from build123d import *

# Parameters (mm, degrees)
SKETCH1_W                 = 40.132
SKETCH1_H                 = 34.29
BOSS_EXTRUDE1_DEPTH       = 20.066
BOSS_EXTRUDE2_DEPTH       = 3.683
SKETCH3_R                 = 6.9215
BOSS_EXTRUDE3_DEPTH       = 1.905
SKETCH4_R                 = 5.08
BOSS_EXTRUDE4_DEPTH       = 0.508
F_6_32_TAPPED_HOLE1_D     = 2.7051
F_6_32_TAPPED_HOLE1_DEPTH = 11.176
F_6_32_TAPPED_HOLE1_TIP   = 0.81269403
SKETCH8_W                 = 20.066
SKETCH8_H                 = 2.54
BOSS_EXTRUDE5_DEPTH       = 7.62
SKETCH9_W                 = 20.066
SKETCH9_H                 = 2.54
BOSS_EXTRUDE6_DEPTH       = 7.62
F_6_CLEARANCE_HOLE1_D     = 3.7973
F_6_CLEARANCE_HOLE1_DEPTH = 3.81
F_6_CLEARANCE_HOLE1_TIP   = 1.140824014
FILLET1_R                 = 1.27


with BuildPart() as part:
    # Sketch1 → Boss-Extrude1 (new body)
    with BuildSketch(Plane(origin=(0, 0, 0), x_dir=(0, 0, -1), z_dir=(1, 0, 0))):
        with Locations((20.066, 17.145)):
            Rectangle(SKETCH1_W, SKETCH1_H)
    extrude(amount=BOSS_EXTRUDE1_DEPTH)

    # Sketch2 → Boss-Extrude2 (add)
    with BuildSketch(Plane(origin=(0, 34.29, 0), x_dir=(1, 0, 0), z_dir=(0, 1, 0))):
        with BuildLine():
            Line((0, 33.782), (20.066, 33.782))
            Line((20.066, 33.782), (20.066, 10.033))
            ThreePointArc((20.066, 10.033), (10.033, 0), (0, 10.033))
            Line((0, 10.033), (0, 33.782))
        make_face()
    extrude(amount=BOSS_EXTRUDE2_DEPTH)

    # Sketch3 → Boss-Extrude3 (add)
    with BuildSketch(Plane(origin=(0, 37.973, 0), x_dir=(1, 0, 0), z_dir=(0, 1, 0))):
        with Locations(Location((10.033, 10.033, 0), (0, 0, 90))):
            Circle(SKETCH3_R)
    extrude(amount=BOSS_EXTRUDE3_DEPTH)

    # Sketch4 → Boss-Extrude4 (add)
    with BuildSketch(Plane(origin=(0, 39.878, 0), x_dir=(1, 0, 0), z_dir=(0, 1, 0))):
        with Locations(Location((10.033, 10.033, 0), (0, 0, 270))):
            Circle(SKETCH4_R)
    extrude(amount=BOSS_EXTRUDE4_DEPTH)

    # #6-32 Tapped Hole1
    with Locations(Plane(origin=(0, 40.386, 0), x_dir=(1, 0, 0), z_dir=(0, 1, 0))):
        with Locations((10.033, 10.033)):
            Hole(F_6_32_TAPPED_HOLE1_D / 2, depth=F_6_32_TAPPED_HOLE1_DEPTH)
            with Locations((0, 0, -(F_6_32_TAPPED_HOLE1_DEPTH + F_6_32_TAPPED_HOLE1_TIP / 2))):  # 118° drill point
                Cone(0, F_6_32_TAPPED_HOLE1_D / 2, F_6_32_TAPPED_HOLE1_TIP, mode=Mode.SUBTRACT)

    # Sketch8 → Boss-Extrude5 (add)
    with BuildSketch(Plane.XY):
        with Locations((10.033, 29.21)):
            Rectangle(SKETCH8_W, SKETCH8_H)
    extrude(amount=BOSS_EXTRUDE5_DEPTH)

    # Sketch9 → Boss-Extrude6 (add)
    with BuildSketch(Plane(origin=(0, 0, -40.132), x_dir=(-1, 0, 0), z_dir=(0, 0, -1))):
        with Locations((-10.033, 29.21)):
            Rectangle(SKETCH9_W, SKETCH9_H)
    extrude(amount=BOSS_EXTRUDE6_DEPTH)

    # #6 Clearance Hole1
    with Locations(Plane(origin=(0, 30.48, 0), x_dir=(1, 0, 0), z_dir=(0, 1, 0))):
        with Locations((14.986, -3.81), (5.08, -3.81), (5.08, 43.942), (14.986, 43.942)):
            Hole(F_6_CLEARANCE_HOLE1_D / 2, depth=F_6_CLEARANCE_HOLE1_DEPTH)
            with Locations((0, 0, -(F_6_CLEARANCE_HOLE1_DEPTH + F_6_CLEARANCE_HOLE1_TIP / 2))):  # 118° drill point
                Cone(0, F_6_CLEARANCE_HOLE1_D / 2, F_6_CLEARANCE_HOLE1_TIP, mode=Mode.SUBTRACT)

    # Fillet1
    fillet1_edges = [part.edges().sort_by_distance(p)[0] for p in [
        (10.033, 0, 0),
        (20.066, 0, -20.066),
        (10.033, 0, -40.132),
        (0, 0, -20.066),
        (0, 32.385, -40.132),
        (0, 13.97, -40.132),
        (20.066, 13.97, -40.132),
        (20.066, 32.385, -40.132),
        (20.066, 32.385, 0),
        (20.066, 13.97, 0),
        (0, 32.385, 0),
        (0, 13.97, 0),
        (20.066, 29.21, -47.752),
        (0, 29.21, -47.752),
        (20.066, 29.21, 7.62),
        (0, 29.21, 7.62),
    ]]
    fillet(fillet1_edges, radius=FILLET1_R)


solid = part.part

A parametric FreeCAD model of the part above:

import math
import FreeCAD as App
import Part
import Sketcher
from FreeCAD import Vector
Q = App.Units.Quantity


def edges_at(feature, points):
    """Names of the edges that pass closest to the given points."""
    edges = feature.Shape.Edges
    near = lambda p: min(range(len(edges)), key=lambda i: edges[i].distToShape(Part.Vertex(*p))[0])
    return sorted({f"Edge{near(p) + 1}" for p in points})


def add_polygon(sketch, points):
    """Adds a closed chain of lines whose ends are joined by coincident constraints."""
    first, n = sketch.GeometryCount, len(points)
    for a, b in zip(points, points[1:] + points[:1]):
        sketch.addGeometry(Part.LineSegment(App.Vector(*a, 0), App.Vector(*b, 0)), False)
    for i in range(n):
        sketch.addConstraint(Sketcher.Constraint("Coincident", first + i, 2, first + (i + 1) % n, 1))

doc = App.newDocument("Part")
body = doc.addObject("PartDesign::Body", "Body")

sketch1 = body.newObject("Sketcher::SketchObject", "Sketch")
sketch1.AttachmentSupport = (doc.getObject("YZ_Plane"), [""])
sketch1.MapMode = "FlatFace"
add_polygon(sketch1, [(34, 0), (0, 0), (0, -40), (34, -40)])
sketch1.addConstraint(Sketcher.Constraint("Horizontal", 0))
sketch1.addConstraint(Sketcher.Constraint("Vertical", 1))
sketch1.addConstraint(Sketcher.Constraint("Horizontal", 2))
sketch1.addConstraint(Sketcher.Constraint("Vertical", 3))
sketch1.addConstraint(Sketcher.Constraint("Coincident", 0, 2, -1, 1))
sketch1.addConstraint(Sketcher.Constraint("DistanceX", 0, 2, 0, 1, Q("1.35 in")))
sketch1.addConstraint(Sketcher.Constraint("DistanceY", 1, 2, 1, 1, Q("1.58 in")))
pad1 = body.newObject("PartDesign::Pad", "Pad")
pad1.Profile = sketch1
pad1.Length = Q("0.79 in")

sketch2 = body.newObject("Sketcher::SketchObject", "Sketch001")
sketch2.AttachmentSupport = (doc.getObject("XZ_Plane"), [""])
sketch2.MapMode = "FlatFace"
sketch2.AttachmentOffset = App.Placement(Vector(0, 0, -1.35 * 25.4), App.Rotation())
sketch2.addGeometry(Part.LineSegment(Vector(20, -34, 0), Vector(0, -34, 0)), False)
sketch2.addGeometry(Part.LineSegment(Vector(0, -34, 0), Vector(0, -10, 0)), False)
sketch2.addGeometry(Part.ArcOfCircle(Part.Circle(Vector(10, -10, 0), Vector(0, 0, 1), 10), math.radians(0), math.radians(180)), False)
sketch2.addGeometry(Part.LineSegment(Vector(20, -10, 0), Vector(20, -34, 0)), False)
sketch2.addConstraint(Sketcher.Constraint("Coincident", 0, 2, 1, 1))
sketch2.addConstraint(Sketcher.Constraint("Tangent", 1, 2, 2, 2))
sketch2.addConstraint(Sketcher.Constraint("Tangent", 2, 1, 3, 1))
sketch2.addConstraint(Sketcher.Constraint("Coincident", 3, 2, 0, 1))
sketch2.addConstraint(Sketcher.Constraint("Horizontal", 0))
sketch2.addConstraint(Sketcher.Constraint("Vertical", 1))
sketch2.addConstraint(Sketcher.Constraint("Vertical", 3))
sketch2.addConstraint(Sketcher.Constraint("PointOnObject", 0, 2, -2))
sketch2.addConstraint(Sketcher.Constraint("Radius", 2, Q("0.395 in")))
sketch2.addConstraint(Sketcher.Constraint("DistanceY", 1, 1, 1, 2, Q("0.935 in")))
sketch2.addConstraint(Sketcher.Constraint("DistanceY", 0, 2, -1, 1, Q("1.33 in")))
pad2 = body.newObject("PartDesign::Pad", "Pad001")
pad2.Profile = sketch2
pad2.Length = Q("0.145 in")
pad2.Reversed = True

sketch3 = body.newObject("Sketcher::SketchObject", "Sketch002")
sketch3.AttachmentSupport = (doc.getObject("XZ_Plane"), [""])
sketch3.MapMode = "FlatFace"
sketch3.AttachmentOffset = App.Placement(Vector(0, 0, -1.495 * 25.4), App.Rotation())
sketch3.addGeometry(Part.Circle(Vector(10, -10, 0), Vector(0, 0, 1), 7), False)
sketch3.addConstraint(Sketcher.Constraint("Diameter", 0, Q("0.545 in")))
sketch3.addConstraint(Sketcher.Constraint("DistanceX", -1, 1, 0, 3, Q("0.395 in")))
sketch3.addConstraint(Sketcher.Constraint("DistanceY", 0, 3, -1, 1, Q("0.395 in")))
pad3 = body.newObject("PartDesign::Pad", "Pad002")
pad3.Profile = sketch3
pad3.Length = Q("0.075 in")
pad3.Reversed = True

sketch4 = body.newObject("Sketcher::SketchObject", "Sketch003")
sketch4.AttachmentSupport = (doc.getObject("XZ_Plane"), [""])
sketch4.MapMode = "FlatFace"
sketch4.AttachmentOffset = App.Placement(Vector(0, 0, -1.57 * 25.4), App.Rotation())
sketch4.addGeometry(Part.Circle(Vector(10, -10, 0), Vector(0, 0, 1), 5), False)
sketch4.addConstraint(Sketcher.Constraint("Diameter", 0, Q("0.4 in")))
sketch4.addConstraint(Sketcher.Constraint("DistanceX", -1, 1, 0, 3, Q("0.395 in")))
sketch4.addConstraint(Sketcher.Constraint("DistanceY", 0, 3, -1, 1, Q("0.395 in")))
pad4 = body.newObject("PartDesign::Pad", "Pad003")
pad4.Profile = sketch4
pad4.Length = Q("0.02 in")
pad4.Reversed = True

sketch5 = body.newObject("Sketcher::SketchObject", "Sketch004")
sketch5.AttachmentSupport = (doc.getObject("XZ_Plane"), [""])
sketch5.MapMode = "FlatFace"
sketch5.AttachmentOffset = App.Placement(Vector(0, 0, -1.59 * 25.4), App.Rotation())
sketch5.addGeometry(Part.Circle(Vector(10, -10, 0), Vector(0, 0, 1), 1.4), False)
sketch5.addConstraint(Sketcher.Constraint("Diameter", 0, Q("0.1065 in")))
sketch5.addConstraint(Sketcher.Constraint("DistanceX", -1, 1, 0, 3, Q("0.395 in")))
sketch5.addConstraint(Sketcher.Constraint("DistanceY", 0, 3, -1, 1, Q("0.395 in")))
doc.recompute()
hole = body.newObject("PartDesign::Hole", "Hole")
hole.Profile = sketch5
hole.ThreadType = "None"
hole.Diameter = Q("0.1065 in")
hole.DepthType = "Dimension"
hole.Depth = Q("0.44 in")
hole.DrillPoint = "Angled"
hole.DrillPointAngle = 118
hole.Reversed = True

sketch6 = body.newObject("Sketcher::SketchObject", "Sketch005")
sketch6.AttachmentSupport = (doc.getObject("XY_Plane"), [""])
sketch6.MapMode = "FlatFace"
add_polygon(sketch6, [(0, 30.5), (0, 27.9), (20.1, 27.9), (20.1, 30.5)])
sketch6.addConstraint(Sketcher.Constraint("Vertical", 0))
sketch6.addConstraint(Sketcher.Constraint("Horizontal", 1))
sketch6.addConstraint(Sketcher.Constraint("Vertical", 2))
sketch6.addConstraint(Sketcher.Constraint("Horizontal", 3))
sketch6.addConstraint(Sketcher.Constraint("PointOnObject", 0, 2, -2))
sketch6.addConstraint(Sketcher.Constraint("DistanceY", 0, 2, 0, 1, Q("0.1 in")))
sketch6.addConstraint(Sketcher.Constraint("DistanceX", 1, 1, 1, 2, Q("0.79 in")))
sketch6.addConstraint(Sketcher.Constraint("DistanceY", -1, 1, 0, 2, Q("1.1 in")))
pad5 = body.newObject("PartDesign::Pad", "Pad004")
pad5.Profile = sketch6
pad5.Length = Q("0.3 in")

sketch7 = body.newObject("Sketcher::SketchObject", "Sketch006")
sketch7.AttachmentSupport = (doc.getObject("XY_Plane"), [""])
sketch7.MapMode = "FlatFace"
sketch7.AttachmentOffset = App.Placement(Vector(0, 0, -1.58 * 25.4), App.Rotation())
add_polygon(sketch7, [(20.1, 30.5), (20.1, 27.9), (0, 27.9), (0, 30.5)])
sketch7.addConstraint(Sketcher.Constraint("Vertical", 0))
sketch7.addConstraint(Sketcher.Constraint("Horizontal", 1))
sketch7.addConstraint(Sketcher.Constraint("Vertical", 2))
sketch7.addConstraint(Sketcher.Constraint("Horizontal", 3))
sketch7.addConstraint(Sketcher.Constraint("PointOnObject", 1, 2, -2))
sketch7.addConstraint(Sketcher.Constraint("DistanceY", 0, 2, 0, 1, Q("0.1 in")))
sketch7.addConstraint(Sketcher.Constraint("DistanceX", 1, 2, 1, 1, Q("0.79 in")))
sketch7.addConstraint(Sketcher.Constraint("DistanceY", -1, 1, 0, 2, Q("1.1 in")))
pad6 = body.newObject("PartDesign::Pad", "Pad005")
pad6.Profile = sketch7
pad6.Length = Q("0.3 in")
pad6.Reversed = True

sketch8 = body.newObject("Sketcher::SketchObject", "Sketch007")
sketch8.AttachmentSupport = (doc.getObject("XZ_Plane"), [""])
sketch8.MapMode = "FlatFace"
sketch8.AttachmentOffset = App.Placement(Vector(0, 0, -1.2 * 25.4), App.Rotation())
sketch8.addGeometry(Part.Circle(Vector(15, 3.8, 0), Vector(0, 0, 1), 1.9), False)
sketch8.addGeometry(Part.Circle(Vector(5.1, 3.8, 0), Vector(0, 0, 1), 1.9), False)
sketch8.addGeometry(Part.Circle(Vector(5.1, -43.9, 0), Vector(0, 0, 1), 1.9), False)
sketch8.addGeometry(Part.Circle(Vector(15, -43.9, 0), Vector(0, 0, 1), 1.9), False)
sketch8.addConstraint(Sketcher.Constraint("Equal", 0, 1))
sketch8.addConstraint(Sketcher.Constraint("Equal", 1, 2))
sketch8.addConstraint(Sketcher.Constraint("Equal", 2, 3))
sketch8.addConstraint(Sketcher.Constraint("Horizontal", 0, 3, 1, 3))
sketch8.addConstraint(Sketcher.Constraint("Horizontal", 2, 3, 3, 3))
sketch8.addConstraint(Sketcher.Constraint("Vertical", 1, 3, 2, 3))
sketch8.addConstraint(Sketcher.Constraint("Vertical", 0, 3, 3, 3))
sketch8.addConstraint(Sketcher.Constraint("Diameter", 0, Q("0.1495 in")))
sketch8.addConstraint(Sketcher.Constraint("DistanceX", -1, 1, 1, 3, Q("0.2 in")))
sketch8.addConstraint(Sketcher.Constraint("DistanceX", -1, 1, 0, 3, Q("0.59 in")))
sketch8.addConstraint(Sketcher.Constraint("DistanceY", -1, 1, 0, 3, Q("0.15 in")))
sketch8.addConstraint(Sketcher.Constraint("DistanceY", 2, 3, -1, 1, Q("1.73 in")))
doc.recompute()
hole2 = body.newObject("PartDesign::Hole", "Hole001")
hole2.Profile = sketch8
hole2.ThreadType = "None"
hole2.Diameter = Q("0.1495 in")
hole2.DepthType = "Dimension"
hole2.Depth = Q("0.15 in")
hole2.DrillPoint = "Angled"
hole2.DrillPointAngle = 118
hole2.Reversed = True
doc.recompute()

fillet = body.newObject("PartDesign::Fillet", "Fillet")
fillet.Base = (hole2, edges_at(hole2, [
    (10.033, 0, 0),
    (20.066, 0, -20.066),
    (10.033, 0, -40.132),
    (0, 0, -20.066),
    (0, 32.385, -40.132),
    (0, 13.97, -40.132),
    (20.066, 13.97, -40.132),
    (20.066, 32.385, -40.132),
    (20.066, 32.385, 0),
    (20.066, 13.97, 0),
    (0, 32.385, 0),
    (0, 13.97, 0),
    (20.066, 29.21, -47.752),
    (0, 29.21, -47.752),
    (20.066, 29.21, 7.62),
    (0, 29.21, 7.62),
]))
fillet.Radius = Q("0.05 in")

doc.recompute()
